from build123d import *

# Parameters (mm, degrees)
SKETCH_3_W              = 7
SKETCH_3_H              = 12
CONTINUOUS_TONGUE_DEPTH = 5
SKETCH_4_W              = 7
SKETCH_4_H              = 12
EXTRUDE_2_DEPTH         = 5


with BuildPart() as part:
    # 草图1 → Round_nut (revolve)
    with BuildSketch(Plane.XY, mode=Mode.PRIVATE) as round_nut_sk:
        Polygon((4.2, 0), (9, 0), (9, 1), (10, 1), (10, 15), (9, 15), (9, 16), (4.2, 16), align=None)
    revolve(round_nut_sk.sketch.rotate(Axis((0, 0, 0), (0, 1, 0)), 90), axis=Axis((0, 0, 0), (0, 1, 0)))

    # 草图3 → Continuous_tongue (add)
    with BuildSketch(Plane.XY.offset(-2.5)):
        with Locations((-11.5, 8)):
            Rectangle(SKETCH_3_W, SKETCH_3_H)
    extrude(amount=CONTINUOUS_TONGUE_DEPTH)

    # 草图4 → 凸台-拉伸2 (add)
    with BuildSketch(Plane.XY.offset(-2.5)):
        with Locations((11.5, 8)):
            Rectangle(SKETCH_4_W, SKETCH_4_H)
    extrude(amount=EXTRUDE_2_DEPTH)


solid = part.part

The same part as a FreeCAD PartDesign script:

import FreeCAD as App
import Part
import Sketcher
from FreeCAD import Vector
Q = App.Units.Quantity

doc = App.newDocument("Part")
params = doc.addObject("Spreadsheet::Sheet", "Params")
for row, (alias, value) in enumerate([
    ("sketch1_width", "1 mm"),
    ("sketch1_height", "14 mm"),
    ("sketch1_width2", "4.8 mm"),
    ("revolution_angle", "360 deg"),
    ("sketch2_width", "7 mm"),
    ("sketch2_height", "12 mm"),
    ("pad1_length", "5 mm"),
    ("sketch3_width", "7 mm"),
    ("sketch3_height", "12 mm"),
    ("pad2_length", "5 mm"),
], start=1):
    params.set(f"A{row}", alias)
    params.set(f"B{row}", "=" + value)
    params.setAlias(f"B{row}", alias)

body = doc.addObject("PartDesign::Body", "Body")

# Sketch on XY plane
sketch1 = body.newObject("Sketcher::SketchObject", "Sketch")
sketch1.AttachmentSupport = (doc.getObject("XY_Plane"), [""])
sketch1.MapMode = "FlatFace"
sketch1.addGeometry([
    Part.LineSegment(Vector(4.2, 0, 0), Vector(9, 0, 0)),  # 0
    Part.LineSegment(Vector(9, 0, 0), Vector(9, 1, 0)),  # 1
    Part.LineSegment(Vector(9, 1, 0), Vector(10, 1, 0)),  # 2
    Part.LineSegment(Vector(10, 1, 0), Vector(10, 15, 0)),  # 3
    Part.LineSegment(Vector(10, 15, 0), Vector(9, 15, 0)),  # 4
    Part.LineSegment(Vector(9, 15, 0), Vector(9, 16, 0)),  # 5
    Part.LineSegment(Vector(9, 16, 0), Vector(4.2, 16, 0)),  # 6
    Part.LineSegment(Vector(4.2, 16, 0), Vector(4.2, 0, 0)),  # 7
], False)
sketch1.addConstraint([
    Sketcher.Constraint("Coincident", 0, 2, 1, 1),
    Sketcher.Constraint("Coincident", 1, 2, 2, 1),
    Sketcher.Constraint("Coincident", 2, 2, 3, 1),
    Sketcher.Constraint("Coincident", 3, 2, 4, 1),
    Sketcher.Constraint("Coincident", 4, 2, 5, 1),
    Sketcher.Constraint("Coincident", 5, 2, 6, 1),
    Sketcher.Constraint("Coincident", 6, 2, 7, 1),
    Sketcher.Constraint("Coincident", 7, 2, 0, 1),
    Sketcher.Constraint("Horizontal", 0),
    Sketcher.Constraint("Vertical", 1),
    Sketcher.Constraint("Horizontal", 2),
    Sketcher.Constraint("Vertical", 3),
    Sketcher.Constraint("Horizontal", 4),
    Sketcher.Constraint("Vertical", 5),
    Sketcher.Constraint("Horizontal", 6),
    Sketcher.Constraint("Vertical", 7),
    Sketcher.Constraint("PointOnObject", 0, 2, -1),
    Sketcher.Constraint("Vertical", 1, 2, 4, 2),
    Sketcher.Constraint("Equal", 4, 1),
    Sketcher.Constraint("Equal", 1, 5),
    Sketcher.Constraint("DistanceX", 2, 1, 2, 2, Q("1 mm")),
    Sketcher.Constraint("DistanceY", 3, 1, 3, 2, Q("14 mm")),
    Sketcher.Constraint("DistanceX", 0, 1, 0, 2, Q("4.8 mm")),
    Sketcher.Constraint("DistanceX", -1, 1, 0, 2, Q("9 mm")),
])
sketch1.setExpression("Constraints[20]", "Params.sketch1_width")
sketch1.setExpression("Constraints[21]", "Params.sketch1_height")
sketch1.setExpression("Constraints[22]", "Params.sketch1_width2")
revolution = body.newObject("PartDesign::Revolution", "Revolution")
revolution.Profile = sketch1
revolution.ReferenceAxis = (sketch1, ["V_Axis"])
revolution.setExpression("Angle", "Params.revolution_angle")

# Sketch on XY plane
sketch2 = body.newObject("Sketcher::SketchObject", "Sketch001")
sketch2.AttachmentSupport = (doc.getObject("XY_Plane"), [""])
sketch2.MapMode = "FlatFace"
sketch2.AttachmentOffset = App.Placement(Vector(0, 0, -2.5), App.Rotation())
sketch2.addGeometry([
    Part.LineSegment(Vector(-15, 14, 0), Vector(-15, 2, 0)),
    Part.LineSegment(Vector(-15, 2, 0), Vector(-8, 2, 0)),
    Part.LineSegment(Vector(-8, 2, 0), Vector(-8, 14, 0)),
    Part.LineSegment(Vector(-8, 14, 0), Vector(-15, 14, 0)),
], False)
sketch2.addConstraint([
    Sketcher.Constraint("Coincident", 0, 2, 1, 1),
    Sketcher.Constraint("Coincident", 1, 2, 2, 1),
    Sketcher.Constraint("Coincident", 2, 2, 3, 1),
    Sketcher.Constraint("Coincident", 3, 2, 0, 1),
    Sketcher.Constraint("Vertical", 0),
    Sketcher.Constraint("Horizontal", 1),
    Sketcher.Constraint("Vertical", 2),
    Sketcher.Constraint("Horizontal", 3),
    Sketcher.Constraint("DistanceX", 1, 1, 1, 2, Q("7 mm")),
    Sketcher.Constraint("DistanceY", 0, 2, 0, 1, Q("12 mm")),
    Sketcher.Constraint("DistanceX", 0, 2, -1, 1, Q("15 mm")),
    Sketcher.Constraint("DistanceY", -1, 1, 0, 2, Q("2 mm")),
])
sketch2.setExpression("Constraints[8]", "Params.sketch2_width")
sketch2.setExpression("Constraints[9]", "Params.sketch2_height")
pad1 = body.newObject("PartDesign::Pad", "Pad")
pad1.Profile = sketch2
pad1.setExpression("Length", "Params.pad1_length")

# Sketch on XY plane
sketch3 = body.newObject("Sketcher::SketchObject", "Sketch002")
sketch3.AttachmentSupport = (doc.getObject("XY_Plane"), [""])
sketch3.MapMode = "FlatFace"
sketch3.AttachmentOffset = App.Placement(Vector(0, 0, -2.5), App.Rotation())
sketch3.addGeometry([
    Part.LineSegment(Vector(8, 14, 0), Vector(8, 2, 0)),
    Part.LineSegment(Vector(8, 2, 0), Vector(15, 2, 0)),
    Part.LineSegment(Vector(15, 2, 0), Vector(15, 14, 0)),
    Part.LineSegment(Vector(15, 14, 0), Vector(8, 14, 0)),
], False)
sketch3.addConstraint([
    Sketcher.Constraint("Coincident", 0, 2, 1, 1),
    Sketcher.Constraint("Coincident", 1, 2, 2, 1),
    Sketcher.Constraint("Coincident", 2, 2, 3, 1),
    Sketcher.Constraint("Coincident", 3, 2, 0, 1),
    Sketcher.Constraint("Vertical", 0),
    Sketcher.Constraint("Horizontal", 1),
    Sketcher.Constraint("Vertical", 2),
    Sketcher.Constraint("Horizontal", 3),
    Sketcher.Constraint("DistanceX", 1, 1, 1, 2, Q("7 mm")),
    Sketcher.Constraint("DistanceY", 0, 2, 0, 1, Q("12 mm")),
    Sketcher.Constraint("DistanceX", -1, 1, 0, 2, Q("8 mm")),
    Sketcher.Constraint("DistanceY", -1, 1, 0, 2, Q("2 mm")),
])
sketch3.setExpression("Constraints[8]", "Params.sketch3_width")
sketch3.setExpression("Constraints[9]", "Params.sketch3_height")
pad2 = body.newObject("PartDesign::Pad", "Pad001")
pad2.Profile = sketch3
pad2.setExpression("Length", "Params.pad2_length")

doc.recompute()
